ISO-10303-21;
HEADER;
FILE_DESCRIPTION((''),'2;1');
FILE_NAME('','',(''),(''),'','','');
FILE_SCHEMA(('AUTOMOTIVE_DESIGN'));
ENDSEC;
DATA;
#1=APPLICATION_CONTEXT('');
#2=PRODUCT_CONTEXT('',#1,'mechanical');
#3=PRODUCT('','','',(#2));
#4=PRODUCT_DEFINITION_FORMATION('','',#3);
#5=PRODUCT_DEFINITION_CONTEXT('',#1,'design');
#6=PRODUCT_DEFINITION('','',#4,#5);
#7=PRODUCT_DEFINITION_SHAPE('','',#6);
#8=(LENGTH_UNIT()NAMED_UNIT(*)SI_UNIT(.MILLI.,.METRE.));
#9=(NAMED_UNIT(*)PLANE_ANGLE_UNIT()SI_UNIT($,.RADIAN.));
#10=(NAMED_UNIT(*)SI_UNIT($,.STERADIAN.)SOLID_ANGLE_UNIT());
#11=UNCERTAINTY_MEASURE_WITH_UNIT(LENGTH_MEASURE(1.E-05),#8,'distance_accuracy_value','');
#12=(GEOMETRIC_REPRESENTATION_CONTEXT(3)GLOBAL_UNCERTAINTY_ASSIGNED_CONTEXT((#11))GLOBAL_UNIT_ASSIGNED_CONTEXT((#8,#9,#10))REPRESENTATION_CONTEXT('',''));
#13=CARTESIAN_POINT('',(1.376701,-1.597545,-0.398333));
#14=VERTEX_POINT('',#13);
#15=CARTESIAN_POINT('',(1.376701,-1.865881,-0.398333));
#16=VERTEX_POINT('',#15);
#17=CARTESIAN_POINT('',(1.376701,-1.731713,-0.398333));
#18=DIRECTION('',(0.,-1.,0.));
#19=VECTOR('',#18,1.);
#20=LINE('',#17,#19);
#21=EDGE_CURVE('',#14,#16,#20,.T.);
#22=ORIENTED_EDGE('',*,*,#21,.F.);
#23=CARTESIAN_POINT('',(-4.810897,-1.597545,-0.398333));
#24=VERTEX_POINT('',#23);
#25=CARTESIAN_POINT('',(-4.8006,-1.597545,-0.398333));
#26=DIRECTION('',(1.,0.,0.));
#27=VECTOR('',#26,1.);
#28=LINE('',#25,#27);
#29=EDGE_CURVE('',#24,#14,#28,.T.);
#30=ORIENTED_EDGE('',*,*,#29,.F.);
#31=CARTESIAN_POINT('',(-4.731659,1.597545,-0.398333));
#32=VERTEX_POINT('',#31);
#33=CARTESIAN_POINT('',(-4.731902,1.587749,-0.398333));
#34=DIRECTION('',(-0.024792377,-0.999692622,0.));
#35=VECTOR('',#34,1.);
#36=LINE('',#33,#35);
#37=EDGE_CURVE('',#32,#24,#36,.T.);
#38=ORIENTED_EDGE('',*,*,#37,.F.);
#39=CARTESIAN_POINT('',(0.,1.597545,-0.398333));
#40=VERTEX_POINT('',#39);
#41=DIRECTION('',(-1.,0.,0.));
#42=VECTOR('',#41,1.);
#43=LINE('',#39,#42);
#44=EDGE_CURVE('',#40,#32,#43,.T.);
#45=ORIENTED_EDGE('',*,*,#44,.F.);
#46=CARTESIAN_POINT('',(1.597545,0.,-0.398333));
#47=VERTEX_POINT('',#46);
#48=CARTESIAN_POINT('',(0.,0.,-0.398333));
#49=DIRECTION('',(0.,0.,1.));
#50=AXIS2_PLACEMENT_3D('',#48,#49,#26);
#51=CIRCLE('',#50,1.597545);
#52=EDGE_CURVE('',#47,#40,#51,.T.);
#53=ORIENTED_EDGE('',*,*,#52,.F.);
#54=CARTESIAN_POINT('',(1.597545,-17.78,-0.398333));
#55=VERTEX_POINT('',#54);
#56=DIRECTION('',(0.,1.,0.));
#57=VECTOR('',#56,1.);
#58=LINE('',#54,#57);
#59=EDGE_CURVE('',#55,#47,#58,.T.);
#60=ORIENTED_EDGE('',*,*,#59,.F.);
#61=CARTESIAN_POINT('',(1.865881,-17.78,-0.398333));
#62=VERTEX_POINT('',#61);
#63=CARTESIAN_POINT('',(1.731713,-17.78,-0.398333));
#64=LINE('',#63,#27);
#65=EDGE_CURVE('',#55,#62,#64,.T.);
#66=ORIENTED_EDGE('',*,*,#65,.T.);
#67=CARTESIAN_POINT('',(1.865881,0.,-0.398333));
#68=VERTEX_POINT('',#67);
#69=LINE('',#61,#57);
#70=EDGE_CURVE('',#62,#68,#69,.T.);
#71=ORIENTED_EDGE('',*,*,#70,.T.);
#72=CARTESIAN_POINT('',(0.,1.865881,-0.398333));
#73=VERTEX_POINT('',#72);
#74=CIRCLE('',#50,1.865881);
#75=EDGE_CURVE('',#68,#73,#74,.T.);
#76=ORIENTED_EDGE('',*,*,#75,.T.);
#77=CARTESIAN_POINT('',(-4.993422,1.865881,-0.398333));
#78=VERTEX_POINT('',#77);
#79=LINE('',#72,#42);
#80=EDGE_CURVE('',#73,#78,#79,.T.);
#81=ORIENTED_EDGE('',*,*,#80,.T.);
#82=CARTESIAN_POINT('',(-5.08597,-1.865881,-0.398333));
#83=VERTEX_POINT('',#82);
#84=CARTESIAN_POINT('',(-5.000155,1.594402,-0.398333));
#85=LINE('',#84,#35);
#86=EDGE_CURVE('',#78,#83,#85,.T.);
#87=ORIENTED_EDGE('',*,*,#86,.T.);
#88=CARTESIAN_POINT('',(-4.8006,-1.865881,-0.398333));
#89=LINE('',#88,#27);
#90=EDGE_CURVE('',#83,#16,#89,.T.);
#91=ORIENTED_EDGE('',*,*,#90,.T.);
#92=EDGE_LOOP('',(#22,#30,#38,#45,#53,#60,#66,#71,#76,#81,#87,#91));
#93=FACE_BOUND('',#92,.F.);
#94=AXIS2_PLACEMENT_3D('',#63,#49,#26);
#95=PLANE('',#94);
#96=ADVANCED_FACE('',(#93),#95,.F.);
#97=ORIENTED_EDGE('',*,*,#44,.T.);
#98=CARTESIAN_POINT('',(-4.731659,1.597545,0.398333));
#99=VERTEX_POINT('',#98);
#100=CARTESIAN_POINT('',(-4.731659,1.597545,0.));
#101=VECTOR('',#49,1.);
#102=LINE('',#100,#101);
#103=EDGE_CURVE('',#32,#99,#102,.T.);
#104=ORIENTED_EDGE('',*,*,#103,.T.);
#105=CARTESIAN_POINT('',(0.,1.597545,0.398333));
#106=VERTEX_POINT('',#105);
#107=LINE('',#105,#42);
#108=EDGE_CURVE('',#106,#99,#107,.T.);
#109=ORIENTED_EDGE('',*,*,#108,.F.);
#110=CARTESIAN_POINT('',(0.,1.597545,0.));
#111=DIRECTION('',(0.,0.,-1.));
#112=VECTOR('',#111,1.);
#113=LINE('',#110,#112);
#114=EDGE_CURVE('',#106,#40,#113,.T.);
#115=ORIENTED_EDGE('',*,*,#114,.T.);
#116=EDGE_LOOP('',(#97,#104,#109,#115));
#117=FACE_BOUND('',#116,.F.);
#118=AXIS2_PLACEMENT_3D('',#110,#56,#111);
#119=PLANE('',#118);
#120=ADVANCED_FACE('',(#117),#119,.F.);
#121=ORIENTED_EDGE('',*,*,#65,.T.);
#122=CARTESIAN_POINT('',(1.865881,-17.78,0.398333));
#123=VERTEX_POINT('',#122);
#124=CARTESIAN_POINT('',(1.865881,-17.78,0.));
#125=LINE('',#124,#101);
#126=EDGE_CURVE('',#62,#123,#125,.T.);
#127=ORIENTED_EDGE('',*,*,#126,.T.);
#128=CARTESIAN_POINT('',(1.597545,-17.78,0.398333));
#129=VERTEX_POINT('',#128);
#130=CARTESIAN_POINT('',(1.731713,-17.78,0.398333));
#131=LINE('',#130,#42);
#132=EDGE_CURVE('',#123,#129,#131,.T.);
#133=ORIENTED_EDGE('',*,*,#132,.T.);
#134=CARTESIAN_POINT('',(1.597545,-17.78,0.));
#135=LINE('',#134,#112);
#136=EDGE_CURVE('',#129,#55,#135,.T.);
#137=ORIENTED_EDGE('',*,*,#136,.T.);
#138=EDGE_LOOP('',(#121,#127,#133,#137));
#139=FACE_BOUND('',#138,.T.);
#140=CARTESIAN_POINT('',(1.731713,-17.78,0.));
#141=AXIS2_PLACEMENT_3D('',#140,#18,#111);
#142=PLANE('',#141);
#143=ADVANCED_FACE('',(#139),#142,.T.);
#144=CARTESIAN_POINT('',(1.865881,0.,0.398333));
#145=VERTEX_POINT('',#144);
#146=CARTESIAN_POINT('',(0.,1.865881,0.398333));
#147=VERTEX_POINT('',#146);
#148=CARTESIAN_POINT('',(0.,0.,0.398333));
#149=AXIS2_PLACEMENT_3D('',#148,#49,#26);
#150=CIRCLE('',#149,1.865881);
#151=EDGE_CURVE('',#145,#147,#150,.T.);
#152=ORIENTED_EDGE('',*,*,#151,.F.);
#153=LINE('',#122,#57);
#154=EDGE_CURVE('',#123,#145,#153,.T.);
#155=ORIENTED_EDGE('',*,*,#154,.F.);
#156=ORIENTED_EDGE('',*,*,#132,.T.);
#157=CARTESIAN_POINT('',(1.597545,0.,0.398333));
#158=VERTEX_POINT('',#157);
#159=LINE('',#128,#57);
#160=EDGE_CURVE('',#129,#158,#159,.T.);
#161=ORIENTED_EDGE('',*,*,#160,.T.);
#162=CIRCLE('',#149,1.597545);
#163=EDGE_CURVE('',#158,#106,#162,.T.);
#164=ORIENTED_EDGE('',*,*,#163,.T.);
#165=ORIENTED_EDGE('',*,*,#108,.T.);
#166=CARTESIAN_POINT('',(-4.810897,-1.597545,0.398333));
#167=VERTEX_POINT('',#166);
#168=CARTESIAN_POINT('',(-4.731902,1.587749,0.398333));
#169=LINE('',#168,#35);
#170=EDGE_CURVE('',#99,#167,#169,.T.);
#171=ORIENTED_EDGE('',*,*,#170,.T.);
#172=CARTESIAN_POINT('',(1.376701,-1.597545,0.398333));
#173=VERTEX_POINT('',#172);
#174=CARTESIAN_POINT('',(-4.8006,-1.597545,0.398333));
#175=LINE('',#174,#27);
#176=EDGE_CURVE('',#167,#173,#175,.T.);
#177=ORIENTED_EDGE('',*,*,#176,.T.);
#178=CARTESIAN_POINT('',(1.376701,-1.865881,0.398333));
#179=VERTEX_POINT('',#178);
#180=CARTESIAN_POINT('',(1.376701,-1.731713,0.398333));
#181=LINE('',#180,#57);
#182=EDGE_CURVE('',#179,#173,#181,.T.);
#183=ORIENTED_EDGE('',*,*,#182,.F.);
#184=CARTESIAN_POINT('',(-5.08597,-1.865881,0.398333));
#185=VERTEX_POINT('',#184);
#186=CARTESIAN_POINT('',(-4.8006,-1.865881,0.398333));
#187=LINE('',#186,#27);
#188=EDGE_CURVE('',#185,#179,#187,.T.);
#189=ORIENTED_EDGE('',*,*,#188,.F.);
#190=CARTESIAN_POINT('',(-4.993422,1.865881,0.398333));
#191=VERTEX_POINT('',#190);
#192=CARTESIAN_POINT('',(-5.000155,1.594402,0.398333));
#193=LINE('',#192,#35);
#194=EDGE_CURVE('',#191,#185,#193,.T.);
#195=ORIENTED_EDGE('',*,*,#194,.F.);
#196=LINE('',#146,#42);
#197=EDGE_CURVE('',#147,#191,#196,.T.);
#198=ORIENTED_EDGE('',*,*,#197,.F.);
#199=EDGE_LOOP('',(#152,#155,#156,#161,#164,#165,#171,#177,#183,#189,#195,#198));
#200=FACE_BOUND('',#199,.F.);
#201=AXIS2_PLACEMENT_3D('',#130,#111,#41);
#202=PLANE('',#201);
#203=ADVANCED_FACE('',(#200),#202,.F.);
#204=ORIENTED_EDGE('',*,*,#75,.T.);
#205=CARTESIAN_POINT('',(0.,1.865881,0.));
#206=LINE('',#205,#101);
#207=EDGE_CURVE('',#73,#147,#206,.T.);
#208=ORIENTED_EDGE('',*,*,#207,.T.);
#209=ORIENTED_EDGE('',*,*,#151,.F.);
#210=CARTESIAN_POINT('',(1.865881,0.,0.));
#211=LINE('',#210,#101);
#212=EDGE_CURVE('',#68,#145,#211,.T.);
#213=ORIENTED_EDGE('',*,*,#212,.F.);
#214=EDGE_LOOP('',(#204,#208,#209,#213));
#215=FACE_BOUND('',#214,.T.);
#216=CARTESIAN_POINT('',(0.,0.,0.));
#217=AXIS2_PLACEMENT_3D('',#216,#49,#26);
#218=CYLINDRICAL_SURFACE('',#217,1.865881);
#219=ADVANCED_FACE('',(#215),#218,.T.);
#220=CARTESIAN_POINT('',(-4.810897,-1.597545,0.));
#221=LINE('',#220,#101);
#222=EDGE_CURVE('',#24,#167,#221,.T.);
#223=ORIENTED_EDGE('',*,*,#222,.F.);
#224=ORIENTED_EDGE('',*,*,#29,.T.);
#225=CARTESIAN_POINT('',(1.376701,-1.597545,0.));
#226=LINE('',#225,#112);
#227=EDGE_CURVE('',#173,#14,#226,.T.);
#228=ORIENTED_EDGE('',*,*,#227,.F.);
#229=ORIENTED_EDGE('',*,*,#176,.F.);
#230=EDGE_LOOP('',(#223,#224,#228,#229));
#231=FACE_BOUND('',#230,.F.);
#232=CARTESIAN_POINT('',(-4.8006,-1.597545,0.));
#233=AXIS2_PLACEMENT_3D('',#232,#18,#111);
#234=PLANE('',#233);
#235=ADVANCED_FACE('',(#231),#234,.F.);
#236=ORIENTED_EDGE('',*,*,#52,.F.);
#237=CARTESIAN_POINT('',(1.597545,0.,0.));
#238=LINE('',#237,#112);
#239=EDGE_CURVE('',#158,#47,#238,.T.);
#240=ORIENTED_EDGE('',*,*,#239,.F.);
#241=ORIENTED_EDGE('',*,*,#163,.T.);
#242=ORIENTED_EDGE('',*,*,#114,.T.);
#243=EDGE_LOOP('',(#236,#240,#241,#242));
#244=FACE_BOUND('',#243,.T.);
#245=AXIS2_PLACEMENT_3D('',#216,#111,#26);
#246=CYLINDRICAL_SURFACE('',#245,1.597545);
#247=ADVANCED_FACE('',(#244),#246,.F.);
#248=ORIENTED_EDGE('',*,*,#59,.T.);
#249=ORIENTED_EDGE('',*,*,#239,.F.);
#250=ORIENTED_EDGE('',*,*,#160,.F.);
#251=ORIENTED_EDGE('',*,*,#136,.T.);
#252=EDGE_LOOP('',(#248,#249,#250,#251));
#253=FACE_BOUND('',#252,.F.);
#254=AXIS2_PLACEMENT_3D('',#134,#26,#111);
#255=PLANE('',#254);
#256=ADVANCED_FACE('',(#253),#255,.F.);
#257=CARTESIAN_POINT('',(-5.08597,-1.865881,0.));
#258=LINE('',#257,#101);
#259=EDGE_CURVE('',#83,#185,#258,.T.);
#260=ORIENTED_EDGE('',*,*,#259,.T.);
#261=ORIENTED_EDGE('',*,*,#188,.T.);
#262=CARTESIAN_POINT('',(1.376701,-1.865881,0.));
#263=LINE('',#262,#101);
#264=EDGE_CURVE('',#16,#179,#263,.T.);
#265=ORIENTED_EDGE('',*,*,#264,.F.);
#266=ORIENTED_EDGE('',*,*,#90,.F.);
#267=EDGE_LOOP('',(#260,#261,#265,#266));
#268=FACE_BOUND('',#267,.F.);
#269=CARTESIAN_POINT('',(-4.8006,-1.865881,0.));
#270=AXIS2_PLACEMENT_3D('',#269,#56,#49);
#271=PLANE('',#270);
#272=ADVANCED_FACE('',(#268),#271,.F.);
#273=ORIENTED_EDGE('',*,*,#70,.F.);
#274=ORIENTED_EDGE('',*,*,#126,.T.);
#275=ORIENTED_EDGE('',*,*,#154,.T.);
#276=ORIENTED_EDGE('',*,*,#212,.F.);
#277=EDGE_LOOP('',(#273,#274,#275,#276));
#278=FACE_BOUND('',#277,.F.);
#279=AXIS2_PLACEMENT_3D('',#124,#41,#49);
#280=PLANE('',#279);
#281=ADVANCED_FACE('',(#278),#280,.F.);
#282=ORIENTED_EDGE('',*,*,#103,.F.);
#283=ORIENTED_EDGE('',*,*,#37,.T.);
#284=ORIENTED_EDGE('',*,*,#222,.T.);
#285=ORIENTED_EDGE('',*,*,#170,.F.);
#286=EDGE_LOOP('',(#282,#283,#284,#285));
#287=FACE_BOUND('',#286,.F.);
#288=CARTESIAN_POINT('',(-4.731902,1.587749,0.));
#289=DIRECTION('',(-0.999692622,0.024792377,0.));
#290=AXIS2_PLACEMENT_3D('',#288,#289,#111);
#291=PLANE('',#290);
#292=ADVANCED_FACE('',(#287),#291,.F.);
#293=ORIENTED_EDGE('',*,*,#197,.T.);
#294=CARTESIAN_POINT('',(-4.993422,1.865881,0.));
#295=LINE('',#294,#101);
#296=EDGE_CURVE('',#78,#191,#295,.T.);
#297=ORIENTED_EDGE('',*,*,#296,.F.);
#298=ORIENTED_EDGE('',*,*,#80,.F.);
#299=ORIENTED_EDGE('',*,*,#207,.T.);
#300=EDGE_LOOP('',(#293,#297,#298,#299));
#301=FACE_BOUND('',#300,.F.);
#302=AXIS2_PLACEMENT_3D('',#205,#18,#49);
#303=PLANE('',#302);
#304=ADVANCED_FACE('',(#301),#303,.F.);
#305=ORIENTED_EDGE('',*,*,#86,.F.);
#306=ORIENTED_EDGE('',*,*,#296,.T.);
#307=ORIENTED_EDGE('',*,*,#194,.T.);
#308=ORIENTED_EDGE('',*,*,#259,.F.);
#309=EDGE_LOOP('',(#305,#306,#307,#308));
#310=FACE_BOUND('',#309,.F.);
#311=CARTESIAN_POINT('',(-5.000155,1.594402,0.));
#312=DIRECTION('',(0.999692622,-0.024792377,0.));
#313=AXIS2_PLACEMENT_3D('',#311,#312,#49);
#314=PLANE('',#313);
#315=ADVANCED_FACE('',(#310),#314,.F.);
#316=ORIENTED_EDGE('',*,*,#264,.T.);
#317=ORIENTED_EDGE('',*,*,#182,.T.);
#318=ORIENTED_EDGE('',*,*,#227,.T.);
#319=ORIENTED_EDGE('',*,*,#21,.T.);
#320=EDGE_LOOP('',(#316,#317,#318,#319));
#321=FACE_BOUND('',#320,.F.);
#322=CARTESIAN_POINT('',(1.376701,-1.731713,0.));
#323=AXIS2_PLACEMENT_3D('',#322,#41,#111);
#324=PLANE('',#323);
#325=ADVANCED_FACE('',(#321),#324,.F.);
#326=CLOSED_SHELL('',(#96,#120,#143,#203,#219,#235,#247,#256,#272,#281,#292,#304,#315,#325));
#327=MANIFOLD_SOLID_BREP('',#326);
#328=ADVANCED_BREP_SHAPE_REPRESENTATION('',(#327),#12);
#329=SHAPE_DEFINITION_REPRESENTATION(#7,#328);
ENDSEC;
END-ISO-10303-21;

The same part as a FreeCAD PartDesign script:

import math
import FreeCAD as App
import Part
import Sketcher

V = App.Vector
Q = App.Units.Quantity


def add_polygon(sketch, points):
    """Adds a closed chain of lines whose ends are joined by coincident constraints."""
    first, n = sketch.GeometryCount, len(points)
    for a, b in zip(points, points[1:] + points[:1]):
        sketch.addGeometry(Part.LineSegment(App.Vector(*a, 0), App.Vector(*b, 0)), False)
    for i in range(n):
        sketch.addConstraint(Sketcher.Constraint("Coincident", first + i, 2, first + (i + 1) % n, 1))

doc = App.newDocument("Part")
params = doc.addObject("Spreadsheet::Sheet", "Params")
for row, (alias, value) in enumerate([
    ("sketch2_height", "0.7 in"),
    ("sketch2_radius", "0.0625 in"),
], start=1):
    params.set(f"A{row}", alias)
    params.set(f"B{row}", "=" + value)
    params.setAlias(f"B{row}", alias)

body = doc.addObject("PartDesign::Body", "Body")

sketch1 = body.newObject("Sketcher::SketchObject", "Sketch")
sketch1.AttachmentSupport = (doc.getObject("XZ_Plane"), [""])
sketch1.MapMode = "FlatFace"
sketch1.AttachmentOffset = App.Placement(V(0, 0, 0.7 * 25.4), App.Rotation())
add_polygon(sketch1, [(1.6, 0.4), (1.6, -0.4), (1.87, -0.4), (1.87, 0.4)])
sketch1.addConstraint([
    Sketcher.Constraint("Vertical", 0),
    Sketcher.Constraint("Horizontal", 1),
    Sketcher.Constraint("Vertical", 2),
    Sketcher.Constraint("Horizontal", 3),
    Sketcher.Constraint("DistanceX", 1, 1, 1, 2, 0.268336),
    Sketcher.Constraint("DistanceY", 0, 2, 0, 1, 0.796665),
    Sketcher.Constraint("DistanceX", -1, 1, 1, 2, 1.865881),
    Sketcher.Constraint("DistanceY", 0, 2, -1, 1, 0.398333),
])

sketch2 = body.newObject("Sketcher::SketchObject", "Sketch001")
sketch2.AttachmentSupport = (doc.getObject("XY_Plane"), [""])
sketch2.MapMode = "FlatFace"
sketch2.addGeometry([
    Part.LineSegment(V(1.6, -17.8, 0), V(1.6, 0, 0)),
    Part.ArcOfCircle(Part.Circle(V(0, 0, 0), V(0, 0, 1), 1.6), math.radians(0), math.radians(90)),
    Part.LineSegment(V(0, 1.6, 0), V(-4.7, 1.6, 0)),
    Part.LineSegment(V(-4.7, 1.6, 0), V(-4.8, -1.6, 0)),
    Part.LineSegment(V(-4.8, -1.6, 0), V(1.4, -1.6, 0)),
], False)
sketch2.addConstraint([
    Sketcher.Constraint("Tangent", 0, 2, 1, 1),
    Sketcher.Constraint("Tangent", 1, 2, 2, 1),
    Sketcher.Constraint("Coincident", 2, 2, 3, 1),
    Sketcher.Constraint("Coincident", 3, 2, 4, 1),
    Sketcher.Constraint("Vertical", 0),
    Sketcher.Constraint("Horizontal", 2),
    Sketcher.Constraint("Horizontal", 4),
    Sketcher.Constraint("Coincident", 1, 3, -1, 1),
    Sketcher.Constraint("DistanceY", 0, 1, 0, 2, Q("0.7 in")),
    Sketcher.Constraint("Radius", 1, Q("0.0625 in")),
    Sketcher.Constraint("DistanceX", 2, 2, 2, 1, Q("0.1859 in")),
    Sketcher.Constraint("DistanceX", 3, 2, -1, 1, Q("0.189 in")),
    Sketcher.Constraint("DistanceY", 3, 2, -1, 1, Q("0.0625 in")),
    Sketcher.Constraint("DistanceX", 4, 1, 4, 2, 6.177301),
])
sketch2.setExpression("Constraints[8]", "Params.sketch2_height")
sketch2.setExpression("Constraints[9]", "Params.sketch2_radius")
doc.recompute()

additivepipe = body.newObject("PartDesign::AdditivePipe", "AdditivePipe")
additivepipe.Profile = sketch1
additivepipe.Spine = (sketch2, ["Edge1", "Edge2", "Edge3", "Edge4", "Edge5"])
additivepipe.Transition = "Right corner"

doc.recompute()
